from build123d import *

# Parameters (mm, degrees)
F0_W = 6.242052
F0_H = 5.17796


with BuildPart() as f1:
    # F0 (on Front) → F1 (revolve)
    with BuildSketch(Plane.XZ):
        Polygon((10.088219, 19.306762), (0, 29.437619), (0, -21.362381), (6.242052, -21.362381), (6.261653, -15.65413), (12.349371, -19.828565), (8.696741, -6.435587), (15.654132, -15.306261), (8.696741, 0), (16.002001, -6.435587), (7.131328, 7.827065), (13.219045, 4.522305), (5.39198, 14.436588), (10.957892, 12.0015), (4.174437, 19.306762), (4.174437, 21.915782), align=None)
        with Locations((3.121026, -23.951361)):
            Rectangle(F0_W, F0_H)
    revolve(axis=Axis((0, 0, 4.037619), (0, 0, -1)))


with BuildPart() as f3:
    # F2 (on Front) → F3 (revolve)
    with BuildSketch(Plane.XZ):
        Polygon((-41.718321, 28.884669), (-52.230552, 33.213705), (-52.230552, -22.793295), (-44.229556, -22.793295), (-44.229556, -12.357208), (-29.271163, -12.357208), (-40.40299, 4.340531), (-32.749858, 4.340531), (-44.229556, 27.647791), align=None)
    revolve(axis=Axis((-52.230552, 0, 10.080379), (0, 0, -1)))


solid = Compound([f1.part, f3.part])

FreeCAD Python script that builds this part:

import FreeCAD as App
import Part
import Sketcher
from FreeCAD import Vector
Q = App.Units.Quantity


def add_polygon(sketch, points):
    """Adds a closed chain of lines whose ends are joined by coincident constraints."""
    first, n = sketch.GeometryCount, len(points)
    for a, b in zip(points, points[1:] + points[:1]):
        sketch.addGeometry(Part.LineSegment(App.Vector(*a, 0), App.Vector(*b, 0)), False)
    for i in range(n):
        sketch.addConstraint(Sketcher.Constraint("Coincident", first + i, 2, first + (i + 1) % n, 1))

doc = App.newDocument("Part")
body = doc.addObject("PartDesign::Body", "Body")

# Sketch on XZ plane
sketch1 = doc.addObject("Sketcher::SketchObject", "Sketch")
body.addObject(sketch1)
sketch1.AttachmentSupport = (doc.XZ_Plane, [""])
sketch1.MapMode = "FlatFace"
add_polygon(sketch1, [(10.1, 19.3), (0, 29.4), (0, -26.5), (6.2, -26.5), (6.2, -21.4), (6.3, -15.7), (12.3, -19.8), (8.7, -6.4), (15.7, -15.3), (8.7, 0), (16, -6.4), (7.1, 7.8), (13.2, 4.5), (5.4, 14.4), (11, 12), (4.2, 19.3), (4.2, 21.9)])  # lines 0-16
sketch1.addConstraint(Sketcher.Constraint("Vertical", 1))
sketch1.addConstraint(Sketcher.Constraint("Horizontal", 2))
sketch1.addConstraint(Sketcher.Constraint("Vertical", 3))
sketch1.addConstraint(Sketcher.Constraint("Vertical", 15))
sketch1.addConstraint(Sketcher.Constraint("PointOnObject", 0, 2, -2))
sketch1.addConstraint(Sketcher.Constraint("PointOnObject", 8, 2, -1))
sketch1.addConstraint(Sketcher.Constraint("Horizontal", 6, 2, 9, 2))
sketch1.addConstraint(Sketcher.Constraint("Horizontal", 14, 2, 16, 2))
sketch1.addConstraint(Sketcher.Constraint("Vertical", 6, 2, 8, 2))
sketch1.addConstraint(Sketcher.Constraint("DistanceY", 3, 2, 0, 2, Q("2 in")))
sketch1.addConstraint(Sketcher.Constraint("DistanceX", -1, 1, 9, 2, Q("0.63 in")))
sketch1.addConstraint(Sketcher.Constraint("DistanceY", -1, 1, 13, 2, Q("0.4725 in")))
sketch1.addConstraint(Sketcher.Constraint("DistanceY", 1, 2, 1, 1, Q("55.97796 mm")))
sketch1.addConstraint(Sketcher.Constraint("DistanceY", 15, 1, 15, 2, Q("2.60902 mm")))
sketch1.addConstraint(Sketcher.Constraint("DistanceX", 3, 2, 4, 2, Q("0.019601 mm")))
sketch1.addConstraint(Sketcher.Constraint("Distance", 5, Q("7.381478 mm")))
sketch1.addConstraint(Sketcher.Constraint("Distance", 6, Q("13.882131 mm")))
sketch1.addConstraint(Sketcher.Constraint("Distance", 13, Q("6.07528 mm")))
sketch1.addConstraint(Sketcher.Constraint("Distance", 16, Q("6.46373 mm")))
sketch1.addConstraint(Sketcher.Constraint("DistanceX", 2, 1, 2, 2, Q("6.242052 mm")))
sketch1.addConstraint(Sketcher.Constraint("DistanceY", -1, 1, 0, 2, Q("29.437619 mm")))
sketch1.addConstraint(Sketcher.Constraint("DistanceY", 4, 2, -1, 1, Q("15.65413 mm")))
sketch1.addConstraint(Sketcher.Constraint("DistanceX", -1, 1, 5, 2, Q("12.349371 mm")))
sketch1.addConstraint(Sketcher.Constraint("DistanceX", -1, 1, 6, 2, Q("8.696741 mm")))
sketch1.addConstraint(Sketcher.Constraint("DistanceY", 7, 2, -1, 1, Q("15.306261 mm")))
sketch1.addConstraint(Sketcher.Constraint("DistanceX", -1, 1, 12, 2, Q("5.39198 mm")))
sketch1.addConstraint(Sketcher.Constraint("DistanceX", -1, 1, 13, 2, Q("10.957892 mm")))
sketch1.addConstraint(Sketcher.Constraint("DistanceY", -1, 1, 14, 2, Q("19.306762 mm")))
sketch1.addConstraint(Sketcher.Constraint("DistanceX", -1, 1, 16, 2, Q("10.088219 mm")))
sketch1.addConstraint(Sketcher.Constraint("DistanceX", 5, 2, 7, 2, Q("3.304761 mm")))
sketch1.addConstraint(Sketcher.Constraint("DistanceY", 6, 2, 10, 2, Q("14.262652 mm")))
sketch1.addConstraint(Sketcher.Constraint("DistanceY", 11, 2, 10, 2, Q("3.30476 mm")))
sketch1.addConstraint(Sketcher.Constraint("DistanceX", 14, 2, 10, 2, Q("2.956891 mm")))
sketch1.addConstraint(Sketcher.Constraint("Distance", 11, Q("6.926885 mm")))
revolution = doc.addObject("PartDesign::Revolution", "Revolution")
body.addObject(revolution)
revolution.Profile = sketch1
revolution.ReferenceAxis = (sketch1, ["V_Axis"])
revolution.Angle = 360
body2 = doc.addObject("PartDesign::Body", "Body001")

# Sketch on XZ plane
sketch2 = doc.addObject("Sketcher::SketchObject", "Sketch001")
body2.addObject(sketch2)
sketch2.AttachmentSupport = (doc.getObject("XZ_Plane001"), [""])
sketch2.MapMode = "FlatFace"
add_polygon(sketch2, [(-41.7, 28.9), (-52.2, 33.2), (-52.2, -22.8), (-44.2, -22.8), (-44.2, -12.4), (-29.3, -12.4), (-40.4, 4.3), (-32.7, 4.3), (-44.2, 27.6)])  # lines 0-8
sketch2.addGeometry(Part.LineSegment(Vector(-52.2, 33.2, 0), Vector(-52.2, -22.8, 0)), True)  # axis
sketch2.addConstraint(Sketcher.Constraint("Vertical", 1))
sketch2.addConstraint(Sketcher.Constraint("Horizontal", 2))
sketch2.addConstraint(Sketcher.Constraint("Vertical", 3))
sketch2.addConstraint(Sketcher.Constraint("Horizontal", 4))
sketch2.addConstraint(Sketcher.Constraint("Horizontal", 6))
sketch2.addConstraint(Sketcher.Constraint("Vertical", 9))
sketch2.addConstraint(Sketcher.Constraint("Coincident", 9, 1, 0, 2))
sketch2.addConstraint(Sketcher.Constraint("Perpendicular", 7, 8))
sketch2.addConstraint(Sketcher.Constraint("Horizontal", 2, 2, 9, 2))
sketch2.addConstraint(Sketcher.Constraint("Vertical", 3, 2, 7, 2))
sketch2.addConstraint(Sketcher.Constraint("DistanceX", 2, 1, 2, 2, Q("0.3149998 in")))
sketch2.addConstraint(Sketcher.Constraint("DistanceY", 1, 2, 1, 1, Q("2.205 in")))
sketch2.addConstraint(Sketcher.Constraint("DistanceY", 3, 2, 7, 2, Q("1.575 in")))
sketch2.addConstraint(Sketcher.Constraint("DistanceX", 6, 1, 6, 2, Q("7.653132 mm")))
sketch2.addConstraint(Sketcher.Constraint("Distance", 0, Q("11.368709 mm")))
sketch2.addConstraint(Sketcher.Constraint("Distance", 7, Q("25.98099 mm")))
sketch2.addConstraint(Sketcher.Constraint("DistanceX", 4, 1, 4, 2, Q("14.958393 mm")))
sketch2.addConstraint(Sketcher.Constraint("DistanceY", 3, 1, 3, 2, Q("10.436087 mm")))
sketch2.addConstraint(Sketcher.Constraint("DistanceX", 5, 2, -1, 1, Q("40.40299 mm")))
sketch2.addConstraint(Sketcher.Constraint("DistanceY", -1, 1, 5, 2, Q("4.340531 mm")))
sketch2.addConstraint(Sketcher.Constraint("DistanceY", -1, 1, 7, 2, Q("27.647791 mm")))
revolution2 = doc.addObject("PartDesign::Revolution", "Revolution001")
body2.addObject(revolution2)
revolution2.Profile = sketch2
revolution2.ReferenceAxis = (sketch2, ["Axis0"])
revolution2.Angle = 360

doc.recompute()
